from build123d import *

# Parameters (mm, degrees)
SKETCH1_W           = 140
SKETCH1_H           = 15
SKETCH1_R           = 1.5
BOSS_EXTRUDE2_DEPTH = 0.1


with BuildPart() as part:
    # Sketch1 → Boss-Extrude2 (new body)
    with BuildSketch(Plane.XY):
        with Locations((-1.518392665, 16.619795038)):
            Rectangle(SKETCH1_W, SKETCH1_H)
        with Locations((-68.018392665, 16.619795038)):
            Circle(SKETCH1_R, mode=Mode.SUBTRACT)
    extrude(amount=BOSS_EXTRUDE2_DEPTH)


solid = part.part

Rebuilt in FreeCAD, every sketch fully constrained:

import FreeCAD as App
import Part
import Sketcher
from FreeCAD import Vector


def add_polygon(sketch, points):
    """Adds a closed chain of lines whose ends are joined by coincident constraints."""
    first, n = sketch.GeometryCount, len(points)
    for a, b in zip(points, points[1:] + points[:1]):
        sketch.addGeometry(Part.LineSegment(App.Vector(*a, 0), App.Vector(*b, 0)), False)
    for i in range(n):
        sketch.addConstraint(Sketcher.Constraint("Coincident", first + i, 2, first + (i + 1) % n, 1))

doc = App.newDocument("Part")
body = doc.addObject("PartDesign::Body", "Body")

sketch1 = body.newObject("Sketcher::SketchObject", "Sketch")
sketch1.AttachmentSupport = (doc.getObject("XY_Plane"), [""])
sketch1.MapMode = "FlatFace"
add_polygon(sketch1, [(-71.5, 24.1), (-71.5, 9.1), (68.5, 9.1), (68.5, 24.1)])
sketch1.addGeometry(Part.Circle(Vector(-68, 16.6, 0), Vector(0, 0, 1), 1.5), False)
sketch1.addConstraint([
    Sketcher.Constraint("Vertical", 0),
    Sketcher.Constraint("Horizontal", 1),
    Sketcher.Constraint("Vertical", 2),
    Sketcher.Constraint("Horizontal", 3),
    Sketcher.Constraint("Diameter", 4, 3.0),
    Sketcher.Constraint("DistanceX", 1, 1, 1, 2, 140.0),
    Sketcher.Constraint("DistanceY", 0, 2, 0, 1, 15.0),
    Sketcher.Constraint("DistanceX", 0, 2, 4, 3, 3.5),
    Sketcher.Constraint("DistanceY", 0, 2, 4, 3, 7.5),
    Sketcher.Constraint("DistanceX", 4, 3, -1, 1, 68.018393),
    Sketcher.Constraint("DistanceY", -1, 1, 4, 3, 16.619795),
])
pad1 = body.newObject("PartDesign::Pad", "Pad")
pad1.Profile = sketch1
pad1.Length = 0.1

doc.recompute()
